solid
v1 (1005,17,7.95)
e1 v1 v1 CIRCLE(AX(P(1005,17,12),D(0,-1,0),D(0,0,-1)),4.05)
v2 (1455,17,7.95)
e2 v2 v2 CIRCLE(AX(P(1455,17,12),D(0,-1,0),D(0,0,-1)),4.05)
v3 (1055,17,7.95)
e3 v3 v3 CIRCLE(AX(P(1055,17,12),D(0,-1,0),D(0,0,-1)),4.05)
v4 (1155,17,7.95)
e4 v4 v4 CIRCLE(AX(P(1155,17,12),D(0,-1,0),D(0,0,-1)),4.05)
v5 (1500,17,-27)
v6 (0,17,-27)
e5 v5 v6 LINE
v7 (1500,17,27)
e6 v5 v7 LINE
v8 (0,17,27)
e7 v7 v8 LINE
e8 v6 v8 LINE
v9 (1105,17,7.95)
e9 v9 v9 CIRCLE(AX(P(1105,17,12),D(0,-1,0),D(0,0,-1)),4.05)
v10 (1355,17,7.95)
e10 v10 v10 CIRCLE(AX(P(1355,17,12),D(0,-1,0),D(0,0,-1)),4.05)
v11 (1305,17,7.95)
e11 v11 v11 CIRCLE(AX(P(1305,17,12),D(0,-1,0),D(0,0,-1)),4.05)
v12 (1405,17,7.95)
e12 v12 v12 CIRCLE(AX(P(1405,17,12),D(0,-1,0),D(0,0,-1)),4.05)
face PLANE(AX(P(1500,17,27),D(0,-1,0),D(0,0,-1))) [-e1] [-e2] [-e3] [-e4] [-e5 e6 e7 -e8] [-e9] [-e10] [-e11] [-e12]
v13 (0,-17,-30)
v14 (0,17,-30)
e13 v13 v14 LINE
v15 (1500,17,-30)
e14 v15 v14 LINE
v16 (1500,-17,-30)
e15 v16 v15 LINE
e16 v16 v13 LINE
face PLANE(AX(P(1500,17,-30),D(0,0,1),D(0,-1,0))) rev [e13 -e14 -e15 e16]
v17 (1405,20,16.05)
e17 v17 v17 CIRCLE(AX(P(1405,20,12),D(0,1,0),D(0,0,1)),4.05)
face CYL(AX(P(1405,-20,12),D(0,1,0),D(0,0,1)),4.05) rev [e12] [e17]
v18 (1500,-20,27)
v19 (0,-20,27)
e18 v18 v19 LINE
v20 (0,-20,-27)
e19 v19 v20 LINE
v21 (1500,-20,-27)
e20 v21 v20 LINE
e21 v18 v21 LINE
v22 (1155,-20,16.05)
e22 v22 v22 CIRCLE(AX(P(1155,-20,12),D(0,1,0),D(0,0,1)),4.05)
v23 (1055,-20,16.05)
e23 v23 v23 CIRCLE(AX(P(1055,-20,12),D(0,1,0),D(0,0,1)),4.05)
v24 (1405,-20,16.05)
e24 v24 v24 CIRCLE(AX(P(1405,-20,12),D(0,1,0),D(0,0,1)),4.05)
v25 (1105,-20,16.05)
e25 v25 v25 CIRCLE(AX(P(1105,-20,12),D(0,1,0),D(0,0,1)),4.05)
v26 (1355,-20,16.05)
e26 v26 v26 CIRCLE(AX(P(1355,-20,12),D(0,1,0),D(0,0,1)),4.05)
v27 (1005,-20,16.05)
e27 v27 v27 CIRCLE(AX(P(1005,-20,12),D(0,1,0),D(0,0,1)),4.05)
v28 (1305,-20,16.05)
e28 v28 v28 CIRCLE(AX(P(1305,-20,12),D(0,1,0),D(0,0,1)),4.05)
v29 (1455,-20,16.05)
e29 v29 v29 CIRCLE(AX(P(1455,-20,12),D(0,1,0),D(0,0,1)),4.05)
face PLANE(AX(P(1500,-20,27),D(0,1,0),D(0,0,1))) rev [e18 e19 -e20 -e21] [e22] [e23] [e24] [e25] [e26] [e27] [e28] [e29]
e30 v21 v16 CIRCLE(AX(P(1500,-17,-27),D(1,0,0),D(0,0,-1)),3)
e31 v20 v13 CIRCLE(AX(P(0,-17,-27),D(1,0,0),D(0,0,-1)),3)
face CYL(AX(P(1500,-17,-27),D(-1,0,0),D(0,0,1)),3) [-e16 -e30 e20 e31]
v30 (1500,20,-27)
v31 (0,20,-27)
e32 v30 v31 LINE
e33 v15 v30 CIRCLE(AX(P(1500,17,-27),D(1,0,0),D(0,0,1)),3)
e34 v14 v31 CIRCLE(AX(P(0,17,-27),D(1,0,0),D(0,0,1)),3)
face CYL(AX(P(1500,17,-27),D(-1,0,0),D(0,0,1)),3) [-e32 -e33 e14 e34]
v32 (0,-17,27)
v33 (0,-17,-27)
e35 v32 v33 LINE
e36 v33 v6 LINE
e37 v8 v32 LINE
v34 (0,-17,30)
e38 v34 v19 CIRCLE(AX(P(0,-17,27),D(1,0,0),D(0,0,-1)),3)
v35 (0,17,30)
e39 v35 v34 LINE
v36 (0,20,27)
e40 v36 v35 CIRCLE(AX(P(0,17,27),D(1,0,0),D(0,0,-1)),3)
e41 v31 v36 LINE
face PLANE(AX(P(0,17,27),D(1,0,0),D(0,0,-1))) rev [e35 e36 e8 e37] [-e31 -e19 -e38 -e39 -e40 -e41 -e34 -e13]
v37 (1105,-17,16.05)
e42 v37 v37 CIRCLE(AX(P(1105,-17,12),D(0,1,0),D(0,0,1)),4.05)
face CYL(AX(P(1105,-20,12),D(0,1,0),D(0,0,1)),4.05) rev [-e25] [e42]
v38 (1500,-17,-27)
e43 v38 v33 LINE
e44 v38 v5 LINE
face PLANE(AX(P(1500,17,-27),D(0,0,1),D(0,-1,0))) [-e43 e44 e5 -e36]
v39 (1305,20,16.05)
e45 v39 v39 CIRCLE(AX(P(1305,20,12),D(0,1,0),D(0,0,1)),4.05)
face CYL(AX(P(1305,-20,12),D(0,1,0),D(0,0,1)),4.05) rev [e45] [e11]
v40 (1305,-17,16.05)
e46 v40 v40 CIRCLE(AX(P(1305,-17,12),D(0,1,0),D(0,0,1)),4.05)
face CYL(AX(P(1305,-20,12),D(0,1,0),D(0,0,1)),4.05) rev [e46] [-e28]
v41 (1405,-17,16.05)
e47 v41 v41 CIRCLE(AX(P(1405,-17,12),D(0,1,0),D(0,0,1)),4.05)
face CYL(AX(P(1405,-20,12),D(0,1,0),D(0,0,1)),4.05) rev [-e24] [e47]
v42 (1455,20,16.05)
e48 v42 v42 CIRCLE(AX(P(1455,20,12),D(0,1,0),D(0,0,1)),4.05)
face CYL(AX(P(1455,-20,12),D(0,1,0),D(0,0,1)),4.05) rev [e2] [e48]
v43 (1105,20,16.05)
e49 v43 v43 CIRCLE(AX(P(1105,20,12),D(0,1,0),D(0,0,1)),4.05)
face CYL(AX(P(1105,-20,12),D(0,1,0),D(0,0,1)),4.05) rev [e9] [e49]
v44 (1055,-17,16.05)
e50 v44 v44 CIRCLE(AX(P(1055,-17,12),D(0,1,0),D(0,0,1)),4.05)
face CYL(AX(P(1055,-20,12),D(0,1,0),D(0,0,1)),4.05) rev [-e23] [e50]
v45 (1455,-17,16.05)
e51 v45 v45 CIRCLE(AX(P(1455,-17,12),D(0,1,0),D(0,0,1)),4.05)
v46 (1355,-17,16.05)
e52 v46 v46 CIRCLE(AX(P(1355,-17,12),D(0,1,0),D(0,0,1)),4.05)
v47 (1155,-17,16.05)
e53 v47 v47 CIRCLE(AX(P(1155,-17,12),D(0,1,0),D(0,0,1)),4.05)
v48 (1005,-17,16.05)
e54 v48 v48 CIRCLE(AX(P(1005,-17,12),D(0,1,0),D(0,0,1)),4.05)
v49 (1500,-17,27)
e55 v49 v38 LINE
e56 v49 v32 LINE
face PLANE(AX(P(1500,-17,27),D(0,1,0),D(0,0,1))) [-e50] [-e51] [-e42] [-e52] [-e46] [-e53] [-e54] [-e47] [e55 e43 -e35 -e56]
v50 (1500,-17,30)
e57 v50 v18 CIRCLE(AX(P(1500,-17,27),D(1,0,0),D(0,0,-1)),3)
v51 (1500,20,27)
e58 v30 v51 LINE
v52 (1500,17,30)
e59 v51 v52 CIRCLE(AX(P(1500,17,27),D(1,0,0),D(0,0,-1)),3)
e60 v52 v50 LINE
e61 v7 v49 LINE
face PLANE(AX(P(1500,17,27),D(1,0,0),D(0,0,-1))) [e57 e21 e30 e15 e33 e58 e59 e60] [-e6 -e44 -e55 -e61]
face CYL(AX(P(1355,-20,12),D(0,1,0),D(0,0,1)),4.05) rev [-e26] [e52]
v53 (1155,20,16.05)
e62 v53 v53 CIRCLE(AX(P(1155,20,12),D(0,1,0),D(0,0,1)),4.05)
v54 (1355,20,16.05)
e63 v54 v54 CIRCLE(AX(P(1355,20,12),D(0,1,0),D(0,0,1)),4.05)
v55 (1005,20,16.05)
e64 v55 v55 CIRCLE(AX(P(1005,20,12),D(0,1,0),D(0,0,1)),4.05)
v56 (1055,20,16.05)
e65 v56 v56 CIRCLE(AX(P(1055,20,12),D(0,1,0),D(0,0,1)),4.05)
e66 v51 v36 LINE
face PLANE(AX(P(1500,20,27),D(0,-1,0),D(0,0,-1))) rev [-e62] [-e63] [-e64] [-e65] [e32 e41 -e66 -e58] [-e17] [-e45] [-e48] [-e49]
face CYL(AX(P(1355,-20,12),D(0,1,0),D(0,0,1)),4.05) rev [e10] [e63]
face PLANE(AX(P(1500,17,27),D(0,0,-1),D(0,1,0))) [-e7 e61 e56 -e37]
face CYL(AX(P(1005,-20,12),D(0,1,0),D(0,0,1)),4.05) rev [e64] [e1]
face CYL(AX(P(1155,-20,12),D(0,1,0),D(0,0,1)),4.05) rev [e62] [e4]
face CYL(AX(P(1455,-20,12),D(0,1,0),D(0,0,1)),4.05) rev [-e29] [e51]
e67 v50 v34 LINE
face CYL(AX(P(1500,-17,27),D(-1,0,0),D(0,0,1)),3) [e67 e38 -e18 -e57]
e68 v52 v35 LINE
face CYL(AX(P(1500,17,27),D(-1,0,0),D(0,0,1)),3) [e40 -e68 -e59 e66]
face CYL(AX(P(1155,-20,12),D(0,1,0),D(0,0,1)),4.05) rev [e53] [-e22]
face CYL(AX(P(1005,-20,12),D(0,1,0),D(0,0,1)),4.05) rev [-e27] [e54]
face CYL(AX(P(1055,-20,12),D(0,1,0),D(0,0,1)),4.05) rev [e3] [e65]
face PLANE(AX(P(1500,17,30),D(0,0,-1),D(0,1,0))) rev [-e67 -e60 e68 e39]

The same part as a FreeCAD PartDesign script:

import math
import FreeCAD as App
import Part
import Sketcher

V = App.Vector
Q = App.Units.Quantity

doc = App.newDocument("Part")
body = doc.addObject("PartDesign::Body", "Body")

# Sketch on YZ plane
sketch1 = body.newObject("Sketcher::SketchObject", "Sketch")
sketch1.AttachmentSupport = (doc.getObject("YZ_Plane"), [""])
sketch1.MapMode = "FlatFace"
sketch1.addGeometry(Part.LineSegment(V(-17, -30, 0), V(17, -30, 0)), False)
sketch1.addGeometry(Part.ArcOfCircle(Part.Circle(V(17, -27, 0), V(0, 0, 1), 3), math.radians(-90), math.radians(0)), False)
sketch1.addGeometry(Part.LineSegment(V(20, -27, 0), V(20, 27, 0)), False)
sketch1.addGeometry(Part.ArcOfCircle(Part.Circle(V(17, 27, 0), V(0, 0, 1), 3), math.radians(0), math.radians(90)), False)
sketch1.addGeometry(Part.LineSegment(V(17, 30, 0), V(-17, 30, 0)), False)
sketch1.addGeometry(Part.ArcOfCircle(Part.Circle(V(-17, 27, 0), V(0, 0, 1), 3), math.radians(90), math.radians(180)), False)
sketch1.addGeometry(Part.LineSegment(V(-20, 27, 0), V(-20, -27, 0)), False)
sketch1.addGeometry(Part.ArcOfCircle(Part.Circle(V(-17, -27, 0), V(0, 0, 1), 3), math.radians(180), math.radians(270)), False)
sketch1.addGeometry(Part.LineSegment(V(-17, 27, 0), V(17, 27, 0)), False)
sketch1.addGeometry(Part.LineSegment(V(17, 27, 0), V(17, -27, 0)), False)
sketch1.addGeometry(Part.LineSegment(V(17, -27, 0), V(-17, -27, 0)), False)
sketch1.addGeometry(Part.LineSegment(V(-17, -27, 0), V(-17, 27, 0)), False)
sketch1.addConstraint(Sketcher.Constraint("Tangent", 0, 2, 1, 1))
sketch1.addConstraint(Sketcher.Constraint("Tangent", 1, 2, 2, 1))
sketch1.addConstraint(Sketcher.Constraint("Tangent", 2, 2, 3, 1))
sketch1.addConstraint(Sketcher.Constraint("Tangent", 3, 2, 4, 1))
sketch1.addConstraint(Sketcher.Constraint("Tangent", 4, 2, 5, 1))
sketch1.addConstraint(Sketcher.Constraint("Tangent", 5, 2, 6, 1))
sketch1.addConstraint(Sketcher.Constraint("Tangent", 6, 2, 7, 1))
sketch1.addConstraint(Sketcher.Constraint("Tangent", 7, 2, 0, 1))
sketch1.addConstraint(Sketcher.Constraint("Coincident", 8, 2, 9, 1))
sketch1.addConstraint(Sketcher.Constraint("Coincident", 9, 2, 10, 1))
sketch1.addConstraint(Sketcher.Constraint("Coincident", 10, 2, 11, 1))
sketch1.addConstraint(Sketcher.Constraint("Coincident", 11, 2, 8, 1))
sketch1.addConstraint(Sketcher.Constraint("Horizontal", 0))
sketch1.addConstraint(Sketcher.Constraint("Vertical", 2))
sketch1.addConstraint(Sketcher.Constraint("Horizontal", 4))
sketch1.addConstraint(Sketcher.Constraint("Vertical", 6))
sketch1.addConstraint(Sketcher.Constraint("Horizontal", 8))
sketch1.addConstraint(Sketcher.Constraint("Vertical", 9))
sketch1.addConstraint(Sketcher.Constraint("Horizontal", 10))
sketch1.addConstraint(Sketcher.Constraint("Vertical", 11))
sketch1.addConstraint(Sketcher.Constraint("Coincident", 8, 2, 3, 3))
sketch1.addConstraint(Sketcher.Constraint("Coincident", 9, 2, 1, 3))
sketch1.addConstraint(Sketcher.Constraint("Coincident", 10, 2, 7, 3))
sketch1.addConstraint(Sketcher.Constraint("Equal", 3, 5))
sketch1.addConstraint(Sketcher.Constraint("Symmetric", 1, 3, 5, 3, -1, 1))
sketch1.addConstraint(Sketcher.Constraint("Radius", 1, Q("3 mm")))
sketch1.addConstraint(Sketcher.Constraint("DistanceX", 0, 1, 0, 2, Q("34 mm")))
sketch1.addConstraint(Sketcher.Constraint("DistanceY", 2, 1, 2, 2, Q("54 mm")))
pad1 = body.newObject("PartDesign::Pad", "Pad")
pad1.Profile = sketch1
pad1.Length = 1500

# Sketch on XZ plane
sketch2 = body.newObject("Sketcher::SketchObject", "Sketch001")
sketch2.AttachmentSupport = (doc.getObject("XZ_Plane"), [""])
sketch2.MapMode = "FlatFace"
sketch2.AttachmentOffset = App.Placement(V(0, 0, -20), App.Rotation())
sketch2.addGeometry(Part.Circle(V(1455, 12, 0), V(0, 0, 1), 4), False)
sketch2.addGeometry(Part.Circle(V(1405, 12, 0), V(0, 0, 1), 4), False)
sketch2.addGeometry(Part.Circle(V(1355, 12, 0), V(0, 0, 1), 4), False)
sketch2.addGeometry(Part.Circle(V(1305, 12, 0), V(0, 0, 1), 4), False)
sketch2.addGeometry(Part.Circle(V(1155, 12, 0), V(0, 0, 1), 4), False)
sketch2.addGeometry(Part.Circle(V(1105, 12, 0), V(0, 0, 1), 4), False)
sketch2.addGeometry(Part.Circle(V(1055, 12, 0), V(0, 0, 1), 4), False)
sketch2.addGeometry(Part.Circle(V(1005, 12, 0), V(0, 0, 1), 4), False)
sketch2.addConstraint(Sketcher.Constraint("Equal", 0, 1))
sketch2.addConstraint(Sketcher.Constraint("Equal", 1, 2))
sketch2.addConstraint(Sketcher.Constraint("Equal", 2, 3))
sketch2.addConstraint(Sketcher.Constraint("Equal", 3, 4))
sketch2.addConstraint(Sketcher.Constraint("Equal", 4, 5))
sketch2.addConstraint(Sketcher.Constraint("Equal", 5, 6))
sketch2.addConstraint(Sketcher.Constraint("Equal", 6, 7))
sketch2.addConstraint(Sketcher.Constraint("Horizontal", 0, 3, 1, 3))
sketch2.addConstraint(Sketcher.Constraint("Horizontal", 1, 3, 2, 3))
sketch2.addConstraint(Sketcher.Constraint("Horizontal", 2, 3, 3, 3))
sketch2.addConstraint(Sketcher.Constraint("Horizontal", 3, 3, 4, 3))
sketch2.addConstraint(Sketcher.Constraint("Horizontal", 4, 3, 5, 3))
sketch2.addConstraint(Sketcher.Constraint("Horizontal", 5, 3, 6, 3))
sketch2.addConstraint(Sketcher.Constraint("Horizontal", 6, 3, 7, 3))
sketch2.addConstraint(Sketcher.Constraint("Diameter", 0, Q("8.1 mm")))
sketch2.addConstraint(Sketcher.Constraint("DistanceX", -1, 1, 0, 3, Q("1455 mm")))
sketch2.addConstraint(Sketcher.Constraint("DistanceY", -1, 1, 0, 3, Q("12 mm")))
sketch2.addConstraint(Sketcher.Constraint("DistanceX", -1, 1, 1, 3, Q("1405 mm")))
sketch2.addConstraint(Sketcher.Constraint("DistanceX", -1, 1, 2, 3, Q("1355 mm")))
sketch2.addConstraint(Sketcher.Constraint("DistanceX", -1, 1, 3, 3, Q("1305 mm")))
sketch2.addConstraint(Sketcher.Constraint("DistanceX", -1, 1, 4, 3, Q("1155 mm")))
sketch2.addConstraint(Sketcher.Constraint("DistanceX", -1, 1, 5, 3, Q("1105 mm")))
sketch2.addConstraint(Sketcher.Constraint("DistanceX", -1, 1, 6, 3, Q("1055 mm")))
sketch2.addConstraint(Sketcher.Constraint("DistanceX", -1, 1, 7, 3, Q("1005 mm")))
pocket1 = body.newObject("PartDesign::Pocket", "Pocket")
pocket1.Profile = sketch2
pocket1.Type = "ThroughAll"
pocket1.Reversed = True

doc.recompute()
